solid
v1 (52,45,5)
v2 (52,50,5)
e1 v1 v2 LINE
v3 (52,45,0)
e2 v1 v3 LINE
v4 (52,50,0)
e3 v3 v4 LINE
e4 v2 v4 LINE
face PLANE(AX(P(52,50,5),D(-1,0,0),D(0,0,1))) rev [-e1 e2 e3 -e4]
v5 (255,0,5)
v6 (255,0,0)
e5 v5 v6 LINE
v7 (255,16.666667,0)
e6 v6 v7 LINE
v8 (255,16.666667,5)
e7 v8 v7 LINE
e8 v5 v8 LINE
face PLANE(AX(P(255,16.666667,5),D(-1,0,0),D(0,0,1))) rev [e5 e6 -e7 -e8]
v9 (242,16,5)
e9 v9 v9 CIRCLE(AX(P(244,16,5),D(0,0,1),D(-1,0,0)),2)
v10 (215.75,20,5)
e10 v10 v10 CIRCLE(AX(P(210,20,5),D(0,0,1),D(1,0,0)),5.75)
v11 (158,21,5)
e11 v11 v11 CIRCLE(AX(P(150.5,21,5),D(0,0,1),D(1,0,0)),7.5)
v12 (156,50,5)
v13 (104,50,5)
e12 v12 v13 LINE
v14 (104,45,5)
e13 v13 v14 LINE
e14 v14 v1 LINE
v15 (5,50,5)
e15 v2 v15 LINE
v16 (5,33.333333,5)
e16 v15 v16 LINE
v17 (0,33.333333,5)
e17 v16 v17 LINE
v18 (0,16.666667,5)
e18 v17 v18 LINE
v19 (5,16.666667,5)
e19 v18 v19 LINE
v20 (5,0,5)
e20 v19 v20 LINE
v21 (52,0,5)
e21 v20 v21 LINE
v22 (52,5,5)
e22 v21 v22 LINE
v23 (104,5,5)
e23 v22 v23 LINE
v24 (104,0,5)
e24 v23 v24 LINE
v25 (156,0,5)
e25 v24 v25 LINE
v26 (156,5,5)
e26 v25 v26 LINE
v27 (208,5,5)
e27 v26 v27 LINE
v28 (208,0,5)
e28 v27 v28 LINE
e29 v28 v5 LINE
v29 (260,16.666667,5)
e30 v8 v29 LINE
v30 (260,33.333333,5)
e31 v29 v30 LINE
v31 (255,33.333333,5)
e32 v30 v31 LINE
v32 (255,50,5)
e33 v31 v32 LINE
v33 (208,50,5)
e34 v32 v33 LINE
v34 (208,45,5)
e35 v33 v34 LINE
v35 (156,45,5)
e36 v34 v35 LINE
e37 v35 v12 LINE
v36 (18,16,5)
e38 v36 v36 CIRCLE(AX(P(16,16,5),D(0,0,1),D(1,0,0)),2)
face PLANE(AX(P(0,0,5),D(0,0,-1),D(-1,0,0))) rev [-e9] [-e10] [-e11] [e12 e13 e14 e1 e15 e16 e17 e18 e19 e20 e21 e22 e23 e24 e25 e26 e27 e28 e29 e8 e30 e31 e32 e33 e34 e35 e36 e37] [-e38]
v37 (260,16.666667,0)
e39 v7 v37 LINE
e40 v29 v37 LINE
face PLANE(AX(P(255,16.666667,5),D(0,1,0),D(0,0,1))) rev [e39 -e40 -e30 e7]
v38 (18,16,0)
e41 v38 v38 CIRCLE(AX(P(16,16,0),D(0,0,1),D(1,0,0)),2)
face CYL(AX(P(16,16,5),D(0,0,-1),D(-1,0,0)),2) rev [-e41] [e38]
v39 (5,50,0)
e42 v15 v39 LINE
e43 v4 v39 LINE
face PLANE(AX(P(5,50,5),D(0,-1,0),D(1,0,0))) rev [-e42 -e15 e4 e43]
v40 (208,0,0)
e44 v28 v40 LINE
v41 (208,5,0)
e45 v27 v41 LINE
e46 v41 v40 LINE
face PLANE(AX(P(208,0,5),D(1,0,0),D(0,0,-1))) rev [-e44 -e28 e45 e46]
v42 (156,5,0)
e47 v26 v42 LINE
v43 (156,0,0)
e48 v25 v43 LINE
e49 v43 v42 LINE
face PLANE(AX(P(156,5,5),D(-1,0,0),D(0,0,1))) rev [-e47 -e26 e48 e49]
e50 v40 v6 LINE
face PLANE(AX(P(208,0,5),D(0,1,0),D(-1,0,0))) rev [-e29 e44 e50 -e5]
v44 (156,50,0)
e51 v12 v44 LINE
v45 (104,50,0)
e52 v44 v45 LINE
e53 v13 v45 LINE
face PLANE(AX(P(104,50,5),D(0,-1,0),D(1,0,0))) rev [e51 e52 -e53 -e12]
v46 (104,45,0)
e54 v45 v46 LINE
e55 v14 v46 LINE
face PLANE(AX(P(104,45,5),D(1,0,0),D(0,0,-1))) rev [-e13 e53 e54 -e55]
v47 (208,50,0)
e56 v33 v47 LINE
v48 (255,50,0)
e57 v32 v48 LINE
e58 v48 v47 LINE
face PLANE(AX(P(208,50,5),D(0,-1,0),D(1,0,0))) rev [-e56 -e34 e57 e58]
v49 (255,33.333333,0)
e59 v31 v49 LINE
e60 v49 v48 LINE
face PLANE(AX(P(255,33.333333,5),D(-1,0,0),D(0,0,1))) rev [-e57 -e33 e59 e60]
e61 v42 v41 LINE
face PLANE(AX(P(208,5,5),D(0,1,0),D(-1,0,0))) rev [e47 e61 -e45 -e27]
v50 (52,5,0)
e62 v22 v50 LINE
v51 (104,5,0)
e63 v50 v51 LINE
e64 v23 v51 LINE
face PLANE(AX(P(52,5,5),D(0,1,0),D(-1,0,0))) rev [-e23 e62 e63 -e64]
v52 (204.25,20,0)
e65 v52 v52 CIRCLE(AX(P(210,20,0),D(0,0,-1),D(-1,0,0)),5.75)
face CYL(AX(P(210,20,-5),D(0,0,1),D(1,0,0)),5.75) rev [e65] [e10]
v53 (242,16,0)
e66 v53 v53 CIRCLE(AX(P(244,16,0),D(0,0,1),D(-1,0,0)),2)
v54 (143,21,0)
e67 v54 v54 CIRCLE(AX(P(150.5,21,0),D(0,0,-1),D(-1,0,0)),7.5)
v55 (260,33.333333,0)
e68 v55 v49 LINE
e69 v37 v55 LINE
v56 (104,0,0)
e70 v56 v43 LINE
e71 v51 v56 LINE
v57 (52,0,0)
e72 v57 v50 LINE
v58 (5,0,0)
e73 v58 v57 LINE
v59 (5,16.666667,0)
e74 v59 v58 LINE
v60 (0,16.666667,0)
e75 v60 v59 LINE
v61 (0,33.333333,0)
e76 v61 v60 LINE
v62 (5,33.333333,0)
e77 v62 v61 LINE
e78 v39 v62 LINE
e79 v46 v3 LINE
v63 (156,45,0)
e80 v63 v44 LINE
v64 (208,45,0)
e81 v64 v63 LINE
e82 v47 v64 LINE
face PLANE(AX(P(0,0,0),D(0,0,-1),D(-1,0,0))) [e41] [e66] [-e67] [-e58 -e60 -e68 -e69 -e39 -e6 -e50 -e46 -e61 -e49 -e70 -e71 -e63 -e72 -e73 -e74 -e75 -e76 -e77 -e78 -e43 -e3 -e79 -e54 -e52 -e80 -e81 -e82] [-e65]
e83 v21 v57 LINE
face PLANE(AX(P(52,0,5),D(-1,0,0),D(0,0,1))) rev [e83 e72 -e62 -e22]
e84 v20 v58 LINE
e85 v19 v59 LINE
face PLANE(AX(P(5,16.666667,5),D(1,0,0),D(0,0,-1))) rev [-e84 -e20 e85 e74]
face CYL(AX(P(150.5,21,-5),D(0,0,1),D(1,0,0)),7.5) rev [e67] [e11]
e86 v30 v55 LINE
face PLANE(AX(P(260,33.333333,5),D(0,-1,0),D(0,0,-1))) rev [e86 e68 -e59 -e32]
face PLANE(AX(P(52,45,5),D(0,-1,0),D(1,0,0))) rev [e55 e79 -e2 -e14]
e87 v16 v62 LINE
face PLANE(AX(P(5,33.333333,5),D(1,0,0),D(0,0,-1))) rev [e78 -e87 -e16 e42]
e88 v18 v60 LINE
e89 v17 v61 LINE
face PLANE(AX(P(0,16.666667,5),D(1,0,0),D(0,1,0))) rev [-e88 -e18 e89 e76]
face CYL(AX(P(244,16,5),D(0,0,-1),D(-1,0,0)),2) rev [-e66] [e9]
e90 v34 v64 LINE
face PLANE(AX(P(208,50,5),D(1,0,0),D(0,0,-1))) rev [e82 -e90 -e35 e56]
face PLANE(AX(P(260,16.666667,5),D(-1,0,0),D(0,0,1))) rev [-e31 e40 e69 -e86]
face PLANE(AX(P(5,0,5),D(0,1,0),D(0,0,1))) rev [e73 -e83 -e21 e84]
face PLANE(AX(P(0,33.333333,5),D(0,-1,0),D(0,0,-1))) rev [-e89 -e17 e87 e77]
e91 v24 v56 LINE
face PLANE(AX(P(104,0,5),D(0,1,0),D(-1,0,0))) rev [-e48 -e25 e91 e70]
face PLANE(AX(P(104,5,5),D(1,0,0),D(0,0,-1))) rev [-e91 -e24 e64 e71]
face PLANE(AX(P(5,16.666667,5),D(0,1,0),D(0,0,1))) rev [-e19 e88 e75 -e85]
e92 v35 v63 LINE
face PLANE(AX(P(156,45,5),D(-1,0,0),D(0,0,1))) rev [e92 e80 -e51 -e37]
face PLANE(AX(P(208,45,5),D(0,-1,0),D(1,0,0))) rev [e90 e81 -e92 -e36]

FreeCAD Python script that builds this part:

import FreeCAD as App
import Part
import Sketcher

V = App.Vector

doc = App.newDocument("Part")
body = doc.addObject("PartDesign::Body", "Body")

sketch1 = body.newObject("Sketcher::SketchObject", "Sketch")
sketch1.AttachmentSupport = (doc.getObject("XY_Plane"), [""])
sketch1.MapMode = "FlatFace"
sketch1.addGeometry([
    Part.LineSegment(V(5, 33.3, 0), V(0, 33.3, 0)),
    Part.LineSegment(V(0, 33.3, 0), V(0, 16.7, 0)),
    Part.LineSegment(V(0, 16.7, 0), V(5, 16.7, 0)),
    Part.LineSegment(V(5, 16.7, 0), V(5, 0, 0)),
    Part.LineSegment(V(5, 0, 0), V(52, 0, 0)),
    Part.LineSegment(V(52, 0, 0), V(52, 5, 0)),
    Part.LineSegment(V(52, 5, 0), V(104, 5, 0)),
    Part.LineSegment(V(104, 5, 0), V(104, 0, 0)),
    Part.LineSegment(V(104, 0, 0), V(156, 0, 0)),
    Part.LineSegment(V(156, 0, 0), V(156, 5, 0)),
    Part.LineSegment(V(156, 5, 0), V(208, 5, 0)),
    Part.LineSegment(V(208, 5, 0), V(208, 0, 0)),
    Part.LineSegment(V(208, 0, 0), V(255, 0, 0)),
    Part.LineSegment(V(255, 0, 0), V(255, 16.7, 0)),
    Part.LineSegment(V(255, 16.7, 0), V(260, 16.7, 0)),
    Part.LineSegment(V(260, 16.7, 0), V(260, 33.3, 0)),
    Part.LineSegment(V(260, 33.3, 0), V(255, 33.3, 0)),
    Part.LineSegment(V(255, 33.3, 0), V(255, 50, 0)),
    Part.LineSegment(V(255, 50, 0), V(208, 50, 0)),
    Part.LineSegment(V(208, 50, 0), V(208, 45, 0)),
    Part.LineSegment(V(208, 45, 0), V(156, 45, 0)),
    Part.LineSegment(V(156, 45, 0), V(156, 50, 0)),
    Part.LineSegment(V(156, 50, 0), V(104, 50, 0)),
    Part.LineSegment(V(104, 50, 0), V(104, 45, 0)),
    Part.LineSegment(V(104, 45, 0), V(52, 45, 0)),
    Part.LineSegment(V(52, 45, 0), V(52, 50, 0)),
    Part.LineSegment(V(52, 50, 0), V(5, 50, 0)),
    Part.LineSegment(V(5, 50, 0), V(5, 33.3, 0)),
    Part.Circle(V(244, 16, 0), V(0, 0, 1), 2),
    Part.Circle(V(16, 16, 0), V(0, 0, 1), 2),
], False)
sketch1.addConstraint([
    Sketcher.Constraint("Coincident", 0, 2, 1, 1),
    Sketcher.Constraint("Coincident", 1, 2, 2, 1),
    Sketcher.Constraint("Coincident", 2, 2, 3, 1),
    Sketcher.Constraint("Coincident", 3, 2, 4, 1),
    Sketcher.Constraint("Coincident", 4, 2, 5, 1),
    Sketcher.Constraint("Coincident", 5, 2, 6, 1),
    Sketcher.Constraint("Coincident", 6, 2, 7, 1),
    Sketcher.Constraint("Coincident", 7, 2, 8, 1),
    Sketcher.Constraint("Coincident", 8, 2, 9, 1),
    Sketcher.Constraint("Coincident", 9, 2, 10, 1),
    Sketcher.Constraint("Coincident", 10, 2, 11, 1),
    Sketcher.Constraint("Coincident", 11, 2, 12, 1),
    Sketcher.Constraint("Coincident", 12, 2, 13, 1),
    Sketcher.Constraint("Coincident", 13, 2, 14, 1),
    Sketcher.Constraint("Coincident", 14, 2, 15, 1),
    Sketcher.Constraint("Coincident", 15, 2, 16, 1),
    Sketcher.Constraint("Coincident", 16, 2, 17, 1),
    Sketcher.Constraint("Coincident", 17, 2, 18, 1),
    Sketcher.Constraint("Coincident", 18, 2, 19, 1),
    Sketcher.Constraint("Coincident", 19, 2, 20, 1),
    Sketcher.Constraint("Coincident", 20, 2, 21, 1),
    Sketcher.Constraint("Coincident", 21, 2, 22, 1),
    Sketcher.Constraint("Coincident", 22, 2, 23, 1),
    Sketcher.Constraint("Coincident", 23, 2, 24, 1),
    Sketcher.Constraint("Coincident", 24, 2, 25, 1),
    Sketcher.Constraint("Coincident", 25, 2, 26, 1),
    Sketcher.Constraint("Coincident", 26, 2, 27, 1),
    Sketcher.Constraint("Coincident", 27, 2, 0, 1),
    Sketcher.Constraint("Horizontal", 0),
    Sketcher.Constraint("Vertical", 1),
    Sketcher.Constraint("Horizontal", 2),
    Sketcher.Constraint("Vertical", 3),
    Sketcher.Constraint("Horizontal", 4),
    Sketcher.Constraint("Vertical", 5),
    Sketcher.Constraint("Horizontal", 6),
    Sketcher.Constraint("Vertical", 7),
    Sketcher.Constraint("Horizontal", 8),
    Sketcher.Constraint("Vertical", 9),
    Sketcher.Constraint("Horizontal", 10),
    Sketcher.Constraint("Vertical", 11),
    Sketcher.Constraint("Horizontal", 12),
    Sketcher.Constraint("Vertical", 13),
    Sketcher.Constraint("Horizontal", 14),
    Sketcher.Constraint("Vertical", 15),
    Sketcher.Constraint("Horizontal", 16),
    Sketcher.Constraint("Vertical", 17),
    Sketcher.Constraint("Horizontal", 18),
    Sketcher.Constraint("Vertical", 19),
    Sketcher.Constraint("Horizontal", 20),
    Sketcher.Constraint("Vertical", 21),
    Sketcher.Constraint("Horizontal", 22),
    Sketcher.Constraint("Vertical", 23),
    Sketcher.Constraint("Horizontal", 24),
    Sketcher.Constraint("Vertical", 25),
    Sketcher.Constraint("Horizontal", 26),
    Sketcher.Constraint("Vertical", 27),
    Sketcher.Constraint("Equal", 28, 29),
    Sketcher.Constraint("PointOnObject", 0, 2, -2),
    Sketcher.Constraint("PointOnObject", 3, 2, -1),
    Sketcher.Constraint("PointOnObject", 7, 2, -1),
    Sketcher.Constraint("PointOnObject", 11, 2, -1),
    Sketcher.Constraint("Horizontal", 28, 3, 29, 3),
    Sketcher.Constraint("Horizontal", 6, 2, 9, 2),
    Sketcher.Constraint("Horizontal", 2, 2, 13, 2),
    Sketcher.Constraint("Horizontal", 0, 2, 15, 2),
    Sketcher.Constraint("Horizontal", 18, 2, 21, 2),
    Sketcher.Constraint("Horizontal", 20, 2, 23, 2),
    Sketcher.Constraint("Horizontal", 22, 2, 25, 2),
    Sketcher.Constraint("Vertical", 13, 2, 16, 2),
    Sketcher.Constraint("Vertical", 11, 2, 18, 2),
    Sketcher.Constraint("Vertical", 9, 2, 20, 2),
    Sketcher.Constraint("Vertical", 7, 2, 22, 2),
    Sketcher.Constraint("Vertical", 5, 2, 24, 2),
    Sketcher.Constraint("Vertical", 3, 2, 26, 2),
    Sketcher.Constraint("Equal", 6, 8),
    Sketcher.Constraint("Equal", 8, 10),
    Sketcher.Constraint("Equal", 4, 12),
    Sketcher.Constraint("Equal", 2, 14),
    Sketcher.Constraint("Equal", 1, 3),
    Sketcher.Constraint("Equal", 16, 5),
    Sketcher.Constraint("Equal", 15, 17),
    Sketcher.Constraint("Equal", 11, 19),
    Sketcher.Constraint("Diameter", 28, 4.0),
    Sketcher.Constraint("DistanceX", 0, 2, 0, 1, 5.0),
    Sketcher.Constraint("DistanceX", 4, 1, 4, 2, 47.0),
    Sketcher.Constraint("DistanceX", 6, 1, 6, 2, 52.0),
    Sketcher.Constraint("DistanceX", -1, 1, 28, 3, 244.0),
    Sketcher.Constraint("DistanceY", -1, 1, 28, 3, 16.0),
    Sketcher.Constraint("DistanceX", -1, 1, 29, 3, 16.0),
    Sketcher.Constraint("DistanceY", -1, 1, 17, 2, 50.0),
])
pad1 = body.newObject("PartDesign::Pad", "Pad")
pad1.Profile = sketch1
pad1.Length = 5

sketch2 = body.newObject("Sketcher::SketchObject", "Sketch001")
sketch2.AttachmentSupport = (doc.getObject("XY_Plane"), [""])
sketch2.MapMode = "FlatFace"
sketch2.AttachmentOffset = App.Placement(V(0, 0, 5), App.Rotation())
sketch2.addGeometry([
    Part.Circle(V(210, 20, 0), V(0, 0, 1), 6),
    Part.Circle(V(150, 21, 0), V(0, 0, 1), 8),
], False)
sketch2.addConstraint([
    Sketcher.Constraint("Diameter", 1, 15.0),
    Sketcher.Constraint("Diameter", 0, 11.5),
    Sketcher.Constraint("DistanceX", -1, 1, 0, 3, 210.0),
    Sketcher.Constraint("DistanceY", -1, 1, 0, 3, 20.0),
    Sketcher.Constraint("DistanceY", -1, 1, 1, 3, 21.0),
    Sketcher.Constraint("DistanceX", -1, 1, 1, 3, 150.5),
])
pocket1 = body.newObject("PartDesign::Pocket", "Pocket")
pocket1.Profile = sketch2
pocket1.Length = 10

doc.recompute()
